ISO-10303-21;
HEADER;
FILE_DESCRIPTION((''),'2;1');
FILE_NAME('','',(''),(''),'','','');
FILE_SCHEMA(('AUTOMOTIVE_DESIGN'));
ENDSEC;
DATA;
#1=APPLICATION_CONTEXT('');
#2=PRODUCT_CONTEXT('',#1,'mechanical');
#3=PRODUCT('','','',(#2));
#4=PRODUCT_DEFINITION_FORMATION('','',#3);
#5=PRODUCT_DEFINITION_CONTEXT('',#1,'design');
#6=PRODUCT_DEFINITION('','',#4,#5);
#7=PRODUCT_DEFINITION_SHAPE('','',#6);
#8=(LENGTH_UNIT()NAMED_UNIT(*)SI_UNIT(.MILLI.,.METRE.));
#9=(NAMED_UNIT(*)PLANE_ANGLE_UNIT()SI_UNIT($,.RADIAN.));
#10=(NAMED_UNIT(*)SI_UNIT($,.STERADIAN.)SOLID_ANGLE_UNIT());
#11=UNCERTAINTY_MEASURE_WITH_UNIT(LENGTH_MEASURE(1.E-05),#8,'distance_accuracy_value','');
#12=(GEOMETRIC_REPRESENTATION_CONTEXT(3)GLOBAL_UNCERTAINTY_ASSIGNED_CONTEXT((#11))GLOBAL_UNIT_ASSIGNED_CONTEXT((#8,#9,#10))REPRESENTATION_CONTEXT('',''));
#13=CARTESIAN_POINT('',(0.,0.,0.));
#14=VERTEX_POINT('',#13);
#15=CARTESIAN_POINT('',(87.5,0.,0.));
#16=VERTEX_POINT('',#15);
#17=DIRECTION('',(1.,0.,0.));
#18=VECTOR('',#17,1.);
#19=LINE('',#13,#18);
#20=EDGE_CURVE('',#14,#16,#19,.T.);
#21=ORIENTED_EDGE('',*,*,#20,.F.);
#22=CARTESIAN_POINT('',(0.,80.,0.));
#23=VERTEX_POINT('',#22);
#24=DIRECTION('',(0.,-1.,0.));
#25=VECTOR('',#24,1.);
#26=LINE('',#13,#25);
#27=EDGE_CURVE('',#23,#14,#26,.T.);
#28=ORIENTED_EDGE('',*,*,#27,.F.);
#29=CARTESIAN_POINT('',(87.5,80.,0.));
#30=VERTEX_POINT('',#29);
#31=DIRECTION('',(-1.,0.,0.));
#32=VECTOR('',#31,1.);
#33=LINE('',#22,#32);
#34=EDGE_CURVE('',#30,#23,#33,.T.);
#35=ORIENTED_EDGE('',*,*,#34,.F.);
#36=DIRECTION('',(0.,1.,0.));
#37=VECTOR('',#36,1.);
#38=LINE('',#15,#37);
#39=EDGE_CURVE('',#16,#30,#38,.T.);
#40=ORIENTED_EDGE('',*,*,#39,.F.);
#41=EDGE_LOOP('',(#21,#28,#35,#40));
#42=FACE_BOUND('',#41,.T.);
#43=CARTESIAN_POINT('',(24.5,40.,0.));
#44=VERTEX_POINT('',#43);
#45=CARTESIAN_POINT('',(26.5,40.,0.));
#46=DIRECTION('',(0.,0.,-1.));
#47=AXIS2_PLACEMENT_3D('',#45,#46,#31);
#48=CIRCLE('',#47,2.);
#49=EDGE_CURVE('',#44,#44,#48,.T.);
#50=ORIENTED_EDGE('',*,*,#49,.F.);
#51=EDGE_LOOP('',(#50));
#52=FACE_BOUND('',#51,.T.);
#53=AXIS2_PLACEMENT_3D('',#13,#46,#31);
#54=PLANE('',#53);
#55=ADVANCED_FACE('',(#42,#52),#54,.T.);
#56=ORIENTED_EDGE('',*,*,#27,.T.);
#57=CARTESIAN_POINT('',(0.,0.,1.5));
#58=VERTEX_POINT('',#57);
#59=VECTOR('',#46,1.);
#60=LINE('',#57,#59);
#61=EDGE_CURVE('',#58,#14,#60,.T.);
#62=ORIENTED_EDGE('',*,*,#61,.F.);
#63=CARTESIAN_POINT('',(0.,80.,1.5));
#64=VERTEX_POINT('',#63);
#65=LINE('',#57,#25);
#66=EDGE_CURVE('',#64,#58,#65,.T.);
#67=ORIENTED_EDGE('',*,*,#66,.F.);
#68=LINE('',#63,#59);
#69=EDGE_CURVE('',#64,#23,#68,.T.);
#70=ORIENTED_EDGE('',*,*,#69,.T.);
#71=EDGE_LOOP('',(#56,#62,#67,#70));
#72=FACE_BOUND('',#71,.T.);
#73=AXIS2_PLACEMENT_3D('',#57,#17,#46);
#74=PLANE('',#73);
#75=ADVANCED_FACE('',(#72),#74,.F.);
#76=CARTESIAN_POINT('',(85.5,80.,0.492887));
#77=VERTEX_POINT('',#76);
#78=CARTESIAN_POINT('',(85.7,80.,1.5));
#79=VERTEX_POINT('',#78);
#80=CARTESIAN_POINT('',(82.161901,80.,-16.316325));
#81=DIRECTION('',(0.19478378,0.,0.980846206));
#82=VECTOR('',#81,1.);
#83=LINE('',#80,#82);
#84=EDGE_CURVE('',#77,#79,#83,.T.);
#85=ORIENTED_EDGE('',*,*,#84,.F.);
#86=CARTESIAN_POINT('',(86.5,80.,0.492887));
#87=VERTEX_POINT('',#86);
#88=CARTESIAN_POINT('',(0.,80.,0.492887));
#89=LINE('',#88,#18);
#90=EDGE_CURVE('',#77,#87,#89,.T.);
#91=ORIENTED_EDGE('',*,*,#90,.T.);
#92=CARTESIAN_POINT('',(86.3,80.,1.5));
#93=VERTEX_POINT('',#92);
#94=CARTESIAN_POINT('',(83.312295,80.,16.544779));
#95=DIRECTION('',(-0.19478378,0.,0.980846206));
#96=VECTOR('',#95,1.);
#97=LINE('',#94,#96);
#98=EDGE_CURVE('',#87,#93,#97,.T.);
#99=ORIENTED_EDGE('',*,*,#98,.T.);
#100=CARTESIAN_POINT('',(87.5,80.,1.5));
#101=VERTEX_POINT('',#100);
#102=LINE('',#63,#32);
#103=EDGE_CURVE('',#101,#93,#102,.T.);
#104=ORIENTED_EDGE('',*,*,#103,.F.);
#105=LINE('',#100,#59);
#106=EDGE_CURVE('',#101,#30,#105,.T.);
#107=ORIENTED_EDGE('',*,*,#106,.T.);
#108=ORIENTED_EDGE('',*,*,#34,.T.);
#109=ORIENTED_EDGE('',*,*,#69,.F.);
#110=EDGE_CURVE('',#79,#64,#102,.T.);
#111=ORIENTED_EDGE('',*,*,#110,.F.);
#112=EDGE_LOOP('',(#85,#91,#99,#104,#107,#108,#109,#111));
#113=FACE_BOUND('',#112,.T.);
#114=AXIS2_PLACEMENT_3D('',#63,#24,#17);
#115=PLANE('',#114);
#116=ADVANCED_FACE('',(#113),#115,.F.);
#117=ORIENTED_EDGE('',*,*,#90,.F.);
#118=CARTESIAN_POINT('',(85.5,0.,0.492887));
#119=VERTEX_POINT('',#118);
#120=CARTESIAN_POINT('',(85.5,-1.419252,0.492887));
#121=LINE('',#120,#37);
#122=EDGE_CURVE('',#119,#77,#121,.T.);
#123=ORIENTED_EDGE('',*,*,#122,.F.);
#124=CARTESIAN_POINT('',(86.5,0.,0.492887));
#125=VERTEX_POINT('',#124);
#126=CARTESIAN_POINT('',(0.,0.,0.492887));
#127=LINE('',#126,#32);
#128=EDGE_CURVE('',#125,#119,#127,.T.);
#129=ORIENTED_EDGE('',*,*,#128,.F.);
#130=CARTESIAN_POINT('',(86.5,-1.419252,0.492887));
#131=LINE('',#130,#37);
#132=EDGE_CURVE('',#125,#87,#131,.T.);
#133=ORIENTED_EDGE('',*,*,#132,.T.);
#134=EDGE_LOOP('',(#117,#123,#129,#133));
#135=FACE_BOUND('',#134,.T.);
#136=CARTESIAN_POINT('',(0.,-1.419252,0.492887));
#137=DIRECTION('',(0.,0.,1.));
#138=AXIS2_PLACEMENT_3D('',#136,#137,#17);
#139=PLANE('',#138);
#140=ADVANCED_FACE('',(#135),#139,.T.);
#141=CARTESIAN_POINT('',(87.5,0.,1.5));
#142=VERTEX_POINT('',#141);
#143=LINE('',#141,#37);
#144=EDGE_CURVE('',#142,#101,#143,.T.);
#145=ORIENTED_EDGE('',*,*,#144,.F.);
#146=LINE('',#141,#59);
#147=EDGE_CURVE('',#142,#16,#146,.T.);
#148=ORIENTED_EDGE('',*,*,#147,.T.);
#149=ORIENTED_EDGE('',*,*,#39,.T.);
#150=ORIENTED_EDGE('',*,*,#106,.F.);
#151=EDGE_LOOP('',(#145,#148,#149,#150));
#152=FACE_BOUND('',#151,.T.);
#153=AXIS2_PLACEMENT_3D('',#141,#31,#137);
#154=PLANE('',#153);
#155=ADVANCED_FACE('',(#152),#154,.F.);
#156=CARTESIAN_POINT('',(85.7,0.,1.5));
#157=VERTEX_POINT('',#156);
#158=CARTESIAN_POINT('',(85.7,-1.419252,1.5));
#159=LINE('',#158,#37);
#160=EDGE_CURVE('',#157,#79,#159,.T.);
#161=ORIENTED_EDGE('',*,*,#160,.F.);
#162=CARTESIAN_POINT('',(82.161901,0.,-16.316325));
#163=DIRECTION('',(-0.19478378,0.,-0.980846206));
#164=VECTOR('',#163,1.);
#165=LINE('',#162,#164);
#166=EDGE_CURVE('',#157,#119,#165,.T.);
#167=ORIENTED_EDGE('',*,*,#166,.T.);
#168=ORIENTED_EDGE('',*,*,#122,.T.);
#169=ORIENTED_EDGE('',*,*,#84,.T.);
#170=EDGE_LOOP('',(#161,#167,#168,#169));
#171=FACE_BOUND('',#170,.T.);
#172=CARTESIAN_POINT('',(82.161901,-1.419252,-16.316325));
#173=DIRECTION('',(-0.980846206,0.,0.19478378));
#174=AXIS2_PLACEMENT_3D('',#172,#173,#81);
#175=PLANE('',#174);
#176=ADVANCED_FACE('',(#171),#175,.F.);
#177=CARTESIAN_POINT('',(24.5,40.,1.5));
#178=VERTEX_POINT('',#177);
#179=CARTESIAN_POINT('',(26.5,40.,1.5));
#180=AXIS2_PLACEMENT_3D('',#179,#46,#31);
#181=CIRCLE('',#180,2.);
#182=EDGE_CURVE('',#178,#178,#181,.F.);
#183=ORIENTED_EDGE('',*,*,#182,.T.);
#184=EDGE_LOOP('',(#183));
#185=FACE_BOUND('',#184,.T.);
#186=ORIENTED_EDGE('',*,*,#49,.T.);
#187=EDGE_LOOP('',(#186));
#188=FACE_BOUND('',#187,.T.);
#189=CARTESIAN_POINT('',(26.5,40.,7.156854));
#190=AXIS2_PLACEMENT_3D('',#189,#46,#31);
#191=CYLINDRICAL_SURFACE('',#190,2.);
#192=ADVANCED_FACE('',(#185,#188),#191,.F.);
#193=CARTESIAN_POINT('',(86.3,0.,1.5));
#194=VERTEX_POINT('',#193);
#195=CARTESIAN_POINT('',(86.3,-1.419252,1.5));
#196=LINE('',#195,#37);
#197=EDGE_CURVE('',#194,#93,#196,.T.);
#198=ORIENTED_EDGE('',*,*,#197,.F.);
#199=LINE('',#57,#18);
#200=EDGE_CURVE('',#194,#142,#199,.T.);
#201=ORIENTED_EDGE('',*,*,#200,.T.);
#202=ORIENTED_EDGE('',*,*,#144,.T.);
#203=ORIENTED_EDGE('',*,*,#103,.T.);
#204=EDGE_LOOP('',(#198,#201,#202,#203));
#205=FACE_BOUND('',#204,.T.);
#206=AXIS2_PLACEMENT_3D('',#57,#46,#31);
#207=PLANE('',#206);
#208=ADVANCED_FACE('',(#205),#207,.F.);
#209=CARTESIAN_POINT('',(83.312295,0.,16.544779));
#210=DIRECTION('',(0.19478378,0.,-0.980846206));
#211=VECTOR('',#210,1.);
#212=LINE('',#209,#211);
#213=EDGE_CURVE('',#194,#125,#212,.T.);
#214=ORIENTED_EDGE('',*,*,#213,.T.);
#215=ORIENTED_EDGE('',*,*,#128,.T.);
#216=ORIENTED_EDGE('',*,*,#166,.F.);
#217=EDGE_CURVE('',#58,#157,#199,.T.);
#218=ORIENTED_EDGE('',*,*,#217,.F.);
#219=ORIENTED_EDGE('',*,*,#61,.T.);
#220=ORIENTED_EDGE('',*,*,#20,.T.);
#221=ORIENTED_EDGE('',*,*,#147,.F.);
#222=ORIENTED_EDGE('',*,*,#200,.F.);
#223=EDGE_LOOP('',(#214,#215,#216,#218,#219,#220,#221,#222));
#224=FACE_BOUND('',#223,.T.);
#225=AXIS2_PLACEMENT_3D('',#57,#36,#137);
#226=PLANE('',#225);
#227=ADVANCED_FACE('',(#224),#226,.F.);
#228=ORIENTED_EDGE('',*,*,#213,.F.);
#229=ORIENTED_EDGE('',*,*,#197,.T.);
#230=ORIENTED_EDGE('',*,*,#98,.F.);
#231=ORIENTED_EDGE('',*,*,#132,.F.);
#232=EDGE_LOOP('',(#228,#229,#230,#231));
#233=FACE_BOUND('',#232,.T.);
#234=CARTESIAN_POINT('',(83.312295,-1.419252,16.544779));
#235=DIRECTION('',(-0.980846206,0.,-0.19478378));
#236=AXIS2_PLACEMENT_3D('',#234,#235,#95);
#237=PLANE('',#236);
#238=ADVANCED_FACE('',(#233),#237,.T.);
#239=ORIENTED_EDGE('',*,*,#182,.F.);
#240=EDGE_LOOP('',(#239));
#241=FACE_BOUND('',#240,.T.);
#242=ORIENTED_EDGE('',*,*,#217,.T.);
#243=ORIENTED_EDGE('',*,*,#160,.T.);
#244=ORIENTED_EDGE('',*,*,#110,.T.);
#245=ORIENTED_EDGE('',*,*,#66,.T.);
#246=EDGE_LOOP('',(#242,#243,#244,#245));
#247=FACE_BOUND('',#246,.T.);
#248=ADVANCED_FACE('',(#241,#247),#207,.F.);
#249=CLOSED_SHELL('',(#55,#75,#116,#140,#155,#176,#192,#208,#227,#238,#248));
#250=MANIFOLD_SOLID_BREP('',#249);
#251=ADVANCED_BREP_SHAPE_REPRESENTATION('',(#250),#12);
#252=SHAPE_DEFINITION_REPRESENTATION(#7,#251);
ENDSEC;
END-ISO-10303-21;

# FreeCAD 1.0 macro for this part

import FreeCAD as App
import Part
import Sketcher
from FreeCAD import Vector

doc = App.newDocument("Part")
body = doc.addObject("PartDesign::Body", "Body")

# Sketch on XY plane
sketch1 = body.newObject("Sketcher::SketchObject", "Sketch")
sketch1.AttachmentSupport = (doc.getObject("XY_Plane"), [""])
sketch1.MapMode = "FlatFace"
sketch1.addGeometry([
    Part.LineSegment(Vector(0, 80, 0), Vector(0, 0, 0)),
    Part.LineSegment(Vector(0, 0, 0), Vector(88, 0, 0)),
    Part.LineSegment(Vector(88, 0, 0), Vector(88, 80, 0)),
    Part.LineSegment(Vector(88, 80, 0), Vector(0, 80, 0)),
], False)
sketch1.addConstraint([
    Sketcher.Constraint("Coincident", 0, 2, 1, 1),
    Sketcher.Constraint("Coincident", 1, 2, 2, 1),
    Sketcher.Constraint("Coincident", 2, 2, 3, 1),
    Sketcher.Constraint("Coincident", 3, 2, 0, 1),
    Sketcher.Constraint("Vertical", 0),
    Sketcher.Constraint("Horizontal", 1),
    Sketcher.Constraint("Vertical", 2),
    Sketcher.Constraint("Horizontal", 3),
    Sketcher.Constraint("Coincident", 0, 2, -1, 1),
    Sketcher.Constraint("DistanceY", 0, 2, 0, 1, 80.0),
    Sketcher.Constraint("DistanceX", 1, 1, 1, 2, 87.5),
])
pad1 = body.newObject("PartDesign::Pad", "Pad")
pad1.Profile = sketch1
pad1.Length = 1.5

# Sketch on XZ plane
sketch2 = body.newObject("Sketcher::SketchObject", "Sketch001")
sketch2.AttachmentSupport = (doc.getObject("XZ_Plane"), [""])
sketch2.MapMode = "FlatFace"
sketch2.AttachmentOffset = App.Placement(Vector(0, 0, -80), App.Rotation())
sketch2.addGeometry([
    Part.LineSegment(Vector(86.5, 0.5, 0), Vector(85.5, 0.5, 0)),
    Part.LineSegment(Vector(85.5, 0.5, 0), Vector(85.7, 1.5, 0)),
    Part.LineSegment(Vector(85.7, 1.5, 0), Vector(86.3, 1.5, 0)),
    Part.LineSegment(Vector(86.3, 1.5, 0), Vector(86.5, 0.5, 0)),
], False)
sketch2.addConstraint([
    Sketcher.Constraint("Coincident", 0, 2, 1, 1),
    Sketcher.Constraint("Coincident", 1, 2, 2, 1),
    Sketcher.Constraint("Coincident", 2, 2, 3, 1),
    Sketcher.Constraint("Coincident", 3, 2, 0, 1),
    Sketcher.Constraint("Horizontal", 0),
    Sketcher.Constraint("Horizontal", 2),
    Sketcher.Constraint("Equal", 1, 3),
    Sketcher.Constraint("DistanceX", 0, 2, 0, 1, 1.0),
    Sketcher.Constraint("DistanceX", 2, 1, 2, 2, 0.6),
    Sketcher.Constraint("DistanceX", -1, 1, 0, 2, 85.5),
    Sketcher.Constraint("DistanceY", -1, 1, 1, 2, 1.5),
    Sketcher.Constraint("Distance", 1, 1.02678),
])
pocket1 = body.newObject("PartDesign::Pocket", "Pocket")
pocket1.Profile = sketch2
pocket1.Length = 80
pocket1.Reversed = True

# Sketch on XY plane
sketch3 = body.newObject("Sketcher::SketchObject", "Sketch002")
sketch3.AttachmentSupport = (doc.getObject("XY_Plane"), [""])
sketch3.MapMode = "FlatFace"
sketch3.addGeometry(Part.Circle(Vector(26.5, 40, 0), Vector(0, 0, 1), 2), False)
sketch3.addConstraint([
    Sketcher.Constraint("Diameter", 0, 4.0),
    Sketcher.Constraint("DistanceY", -1, 1, 0, 3, 40.0),
    Sketcher.Constraint("DistanceX", -1, 1, 0, 3, 26.5),
])
pocket2 = body.newObject("PartDesign::Pocket", "Pocket001")
pocket2.Profile = sketch3
pocket2.Length = 1.5
pocket2.Reversed = True

doc.recompute()
